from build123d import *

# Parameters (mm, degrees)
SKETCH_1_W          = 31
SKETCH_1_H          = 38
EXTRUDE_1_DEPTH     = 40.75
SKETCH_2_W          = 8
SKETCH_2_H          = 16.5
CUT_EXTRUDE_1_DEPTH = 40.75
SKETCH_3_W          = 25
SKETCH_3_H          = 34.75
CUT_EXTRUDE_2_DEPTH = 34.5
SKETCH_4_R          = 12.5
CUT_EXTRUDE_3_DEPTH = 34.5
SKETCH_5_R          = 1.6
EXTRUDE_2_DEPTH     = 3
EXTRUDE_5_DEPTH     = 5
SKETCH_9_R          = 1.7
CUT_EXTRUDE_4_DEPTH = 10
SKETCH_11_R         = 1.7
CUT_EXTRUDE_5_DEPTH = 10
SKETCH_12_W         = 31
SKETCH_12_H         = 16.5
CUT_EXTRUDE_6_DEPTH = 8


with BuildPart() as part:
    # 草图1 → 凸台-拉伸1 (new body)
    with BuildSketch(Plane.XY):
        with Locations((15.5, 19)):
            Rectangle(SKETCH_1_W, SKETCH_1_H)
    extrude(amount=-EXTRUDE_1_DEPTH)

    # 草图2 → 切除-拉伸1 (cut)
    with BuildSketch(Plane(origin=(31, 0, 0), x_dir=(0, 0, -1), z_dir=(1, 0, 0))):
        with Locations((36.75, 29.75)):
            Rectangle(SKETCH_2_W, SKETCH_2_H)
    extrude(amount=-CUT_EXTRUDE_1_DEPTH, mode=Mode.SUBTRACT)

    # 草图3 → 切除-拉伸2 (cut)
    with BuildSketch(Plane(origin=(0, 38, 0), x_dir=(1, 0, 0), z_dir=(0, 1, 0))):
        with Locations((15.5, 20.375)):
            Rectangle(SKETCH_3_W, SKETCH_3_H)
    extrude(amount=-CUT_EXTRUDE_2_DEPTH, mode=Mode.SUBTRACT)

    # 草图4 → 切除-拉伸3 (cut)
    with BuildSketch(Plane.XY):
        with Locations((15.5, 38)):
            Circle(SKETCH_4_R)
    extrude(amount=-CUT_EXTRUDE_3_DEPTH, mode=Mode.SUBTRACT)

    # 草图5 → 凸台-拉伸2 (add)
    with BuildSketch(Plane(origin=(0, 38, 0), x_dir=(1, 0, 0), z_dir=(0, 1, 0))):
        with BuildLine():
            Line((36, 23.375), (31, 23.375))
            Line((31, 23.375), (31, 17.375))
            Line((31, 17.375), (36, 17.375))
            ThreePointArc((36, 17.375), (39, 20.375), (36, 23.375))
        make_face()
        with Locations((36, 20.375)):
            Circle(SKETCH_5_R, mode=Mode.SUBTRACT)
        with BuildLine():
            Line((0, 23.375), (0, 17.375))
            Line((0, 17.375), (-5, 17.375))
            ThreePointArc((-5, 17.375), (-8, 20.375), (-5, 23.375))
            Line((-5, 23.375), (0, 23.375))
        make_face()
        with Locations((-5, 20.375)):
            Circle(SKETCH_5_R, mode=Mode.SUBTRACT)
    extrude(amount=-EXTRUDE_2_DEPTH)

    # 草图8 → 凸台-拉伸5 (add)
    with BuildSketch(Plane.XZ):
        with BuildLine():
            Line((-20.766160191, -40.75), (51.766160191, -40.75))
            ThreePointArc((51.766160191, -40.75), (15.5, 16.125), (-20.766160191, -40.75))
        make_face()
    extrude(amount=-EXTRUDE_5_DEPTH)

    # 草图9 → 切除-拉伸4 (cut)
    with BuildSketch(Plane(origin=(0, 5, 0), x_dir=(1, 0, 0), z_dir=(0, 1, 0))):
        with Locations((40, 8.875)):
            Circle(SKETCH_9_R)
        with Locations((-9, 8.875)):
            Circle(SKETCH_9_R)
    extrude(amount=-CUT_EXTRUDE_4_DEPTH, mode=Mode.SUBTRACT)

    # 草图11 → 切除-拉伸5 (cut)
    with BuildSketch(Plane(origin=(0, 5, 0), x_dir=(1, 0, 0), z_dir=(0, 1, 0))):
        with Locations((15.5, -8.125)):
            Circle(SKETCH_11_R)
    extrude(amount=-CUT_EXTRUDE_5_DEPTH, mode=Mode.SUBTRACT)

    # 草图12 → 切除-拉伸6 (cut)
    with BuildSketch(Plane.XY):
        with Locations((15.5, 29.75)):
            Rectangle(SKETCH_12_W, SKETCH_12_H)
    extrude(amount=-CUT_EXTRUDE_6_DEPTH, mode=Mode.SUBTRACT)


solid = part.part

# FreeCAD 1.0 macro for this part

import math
import FreeCAD as App
import Part
import Sketcher
from FreeCAD import Vector

doc = App.newDocument("Part")
body = doc.addObject("PartDesign::Body", "Body")

# Sketch on XY plane
sketch1 = body.newObject("Sketcher::SketchObject", "Sketch")
sketch1.AttachmentSupport = (doc.getObject("XY_Plane"), [""])
sketch1.MapMode = "FlatFace"
sketch1.addGeometry(Part.LineSegment(Vector(0, 38, 0), Vector(0, 0, 0)), False)
sketch1.addGeometry(Part.LineSegment(Vector(0, 0, 0), Vector(31, 0, 0)), False)
sketch1.addGeometry(Part.LineSegment(Vector(31, 0, 0), Vector(31, 38, 0)), False)
sketch1.addGeometry(Part.LineSegment(Vector(31, 38, 0), Vector(0, 38, 0)), False)
sketch1.addConstraint(Sketcher.Constraint("Coincident", 0, 2, 1, 1))
sketch1.addConstraint(Sketcher.Constraint("Coincident", 1, 2, 2, 1))
sketch1.addConstraint(Sketcher.Constraint("Coincident", 2, 2, 3, 1))
sketch1.addConstraint(Sketcher.Constraint("Coincident", 3, 2, 0, 1))
sketch1.addConstraint(Sketcher.Constraint("Vertical", 0))
sketch1.addConstraint(Sketcher.Constraint("Horizontal", 1))
sketch1.addConstraint(Sketcher.Constraint("Vertical", 2))
sketch1.addConstraint(Sketcher.Constraint("Horizontal", 3))
sketch1.addConstraint(Sketcher.Constraint("Coincident", 0, 2, -1, 1))
sketch1.addConstraint(Sketcher.Constraint("DistanceX", 1, 1, 1, 2, 31.0))
sketch1.addConstraint(Sketcher.Constraint("DistanceY", 0, 2, 0, 1, 38.0))
pad1 = body.newObject("PartDesign::Pad", "Pad")
pad1.Profile = sketch1
pad1.Length = 40.75
pad1.Reversed = True

# Sketch on YZ plane
sketch2 = body.newObject("Sketcher::SketchObject", "Sketch001")
sketch2.AttachmentSupport = (doc.getObject("YZ_Plane"), [""])
sketch2.MapMode = "FlatFace"
sketch2.AttachmentOffset = App.Placement(Vector(0, 0, 31), App.Rotation())
sketch2.addGeometry(Part.LineSegment(Vector(38, -32.75, 0), Vector(21.5, -32.75, 0)), False)
sketch2.addGeometry(Part.LineSegment(Vector(21.5, -32.75, 0), Vector(21.5, -40.75, 0)), False)
sketch2.addGeometry(Part.LineSegment(Vector(21.5, -40.75, 0), Vector(38, -40.75, 0)), False)
sketch2.addGeometry(Part.LineSegment(Vector(38, -40.75, 0), Vector(38, -32.75, 0)), False)
sketch2.addConstraint(Sketcher.Constraint("Coincident", 0, 2, 1, 1))
sketch2.addConstraint(Sketcher.Constraint("Coincident", 1, 2, 2, 1))
sketch2.addConstraint(Sketcher.Constraint("Coincident", 2, 2, 3, 1))
sketch2.addConstraint(Sketcher.Constraint("Coincident", 3, 2, 0, 1))
sketch2.addConstraint(Sketcher.Constraint("Horizontal", 0))
sketch2.addConstraint(Sketcher.Constraint("Vertical", 1))
sketch2.addConstraint(Sketcher.Constraint("Horizontal", 2))
sketch2.addConstraint(Sketcher.Constraint("Vertical", 3))
sketch2.addConstraint(Sketcher.Constraint("DistanceY", 1, 2, 1, 1, 8.0))
sketch2.addConstraint(Sketcher.Constraint("DistanceX", 0, 2, 0, 1, 16.5))
sketch2.addConstraint(Sketcher.Constraint("DistanceX", -1, 1, 2, 2, 38.0))
sketch2.addConstraint(Sketcher.Constraint("DistanceY", 0, 2, -1, 1, 32.75))
pocket1 = body.newObject("PartDesign::Pocket", "Pocket")
pocket1.Profile = sketch2
pocket1.Length = 40.75

# Sketch on XZ plane
sketch3 = body.newObject("Sketcher::SketchObject", "Sketch002")
sketch3.AttachmentSupport = (doc.getObject("XZ_Plane"), [""])
sketch3.MapMode = "FlatFace"
sketch3.AttachmentOffset = App.Placement(Vector(0, 0, -38), App.Rotation())
sketch3.addGeometry(Part.LineSegment(Vector(3, -37.75, 0), Vector(3, -3, 0)), False)
sketch3.addGeometry(Part.LineSegment(Vector(3, -3, 0), Vector(28, -3, 0)), False)
sketch3.addGeometry(Part.LineSegment(Vector(28, -3, 0), Vector(28, -37.75, 0)), False)
sketch3.addGeometry(Part.LineSegment(Vector(28, -37.75, 0), Vector(3, -37.75, 0)), False)
sketch3.addConstraint(Sketcher.Constraint("Coincident", 0, 2, 1, 1))
sketch3.addConstraint(Sketcher.Constraint("Coincident", 1, 2, 2, 1))
sketch3.addConstraint(Sketcher.Constraint("Coincident", 2, 2, 3, 1))
sketch3.addConstraint(Sketcher.Constraint("Coincident", 3, 2, 0, 1))
sketch3.addConstraint(Sketcher.Constraint("Vertical", 0))
sketch3.addConstraint(Sketcher.Constraint("Horizontal", 1))
sketch3.addConstraint(Sketcher.Constraint("Vertical", 2))
sketch3.addConstraint(Sketcher.Constraint("Horizontal", 3))
sketch3.addConstraint(Sketcher.Constraint("DistanceX", 1, 1, 1, 2, 25.0))
sketch3.addConstraint(Sketcher.Constraint("DistanceX", -1, 1, 0, 2, 3.0))
sketch3.addConstraint(Sketcher.Constraint("DistanceY", 0, 2, -1, 1, 3.0))
sketch3.addConstraint(Sketcher.Constraint("DistanceY", 0, 1, 0, 2, 34.75))
pocket2 = body.newObject("PartDesign::Pocket", "Pocket001")
pocket2.Profile = sketch3
pocket2.Length = 34.5
pocket2.Reversed = True

# Sketch on XY plane
sketch4 = body.newObject("Sketcher::SketchObject", "Sketch003")
sketch4.AttachmentSupport = (doc.getObject("XY_Plane"), [""])
sketch4.MapMode = "FlatFace"
sketch4.addGeometry(Part.Circle(Vector(15.5, 38, 0), Vector(0, 0, 1), 12.5), False)
sketch4.addConstraint(Sketcher.Constraint("Diameter", 0, 25.0))
sketch4.addConstraint(Sketcher.Constraint("DistanceY", -1, 1, 0, 3, 38.0))
sketch4.addConstraint(Sketcher.Constraint("DistanceX", -1, 1, 0, 3, 15.5))
pocket3 = body.newObject("PartDesign::Pocket", "Pocket002")
pocket3.Profile = sketch4
pocket3.Length = 34.5

# Sketch on XZ plane
sketch5 = body.newObject("Sketcher::SketchObject", "Sketch004")
sketch5.AttachmentSupport = (doc.getObject("XZ_Plane"), [""])
sketch5.MapMode = "FlatFace"
sketch5.AttachmentOffset = App.Placement(Vector(0, 0, -38), App.Rotation())
sketch5.addGeometry(Part.LineSegment(Vector(36, -23.375, 0), Vector(31, -23.375, 0)), False)
sketch5.addGeometry(Part.LineSegment(Vector(31, -23.375, 0), Vector(31, -17.375, 0)), False)
sketch5.addGeometry(Part.LineSegment(Vector(31, -17.375, 0), Vector(36, -17.375, 0)), False)
sketch5.addGeometry(Part.ArcOfCircle(Part.Circle(Vector(36, -20.375, 0), Vector(0, 0, 1), 3), math.radians(-90), math.radians(90)), False)
sketch5.addGeometry(Part.Circle(Vector(36, -20.375, 0), Vector(0, 0, 1), 1.6), False)
sketch5.addGeometry(Part.LineSegment(Vector(0, -17.375, 0), Vector(0, -23.375, 0)), False)
sketch5.addGeometry(Part.LineSegment(Vector(0, -23.375, 0), Vector(-5, -23.375, 0)), False)
sketch5.addGeometry(Part.ArcOfCircle(Part.Circle(Vector(-5, -20.375, 0), Vector(0, 0, 1), 3), math.radians(90), math.radians(270)), False)
sketch5.addGeometry(Part.LineSegment(Vector(-5, -17.375, 0), Vector(0, -17.375, 0)), False)
sketch5.addGeometry(Part.Circle(Vector(-5, -20.375, 0), Vector(0, 0, 1), 1.6), False)
sketch5.addConstraint(Sketcher.Constraint("Coincident", 0, 2, 1, 1))
sketch5.addConstraint(Sketcher.Constraint("Coincident", 1, 2, 2, 1))
sketch5.addConstraint(Sketcher.Constraint("Tangent", 2, 2, 3, 2))
sketch5.addConstraint(Sketcher.Constraint("Tangent", 3, 1, 0, 1))
sketch5.addConstraint(Sketcher.Constraint("Coincident", 5, 2, 6, 1))
sketch5.addConstraint(Sketcher.Constraint("Tangent", 6, 2, 7, 2))
sketch5.addConstraint(Sketcher.Constraint("Tangent", 7, 1, 8, 1))
sketch5.addConstraint(Sketcher.Constraint("Coincident", 8, 2, 5, 1))
sketch5.addConstraint(Sketcher.Constraint("Horizontal", 0))
sketch5.addConstraint(Sketcher.Constraint("Vertical", 1))
sketch5.addConstraint(Sketcher.Constraint("Horizontal", 2))
sketch5.addConstraint(Sketcher.Constraint("Vertical", 5))
sketch5.addConstraint(Sketcher.Constraint("Horizontal", 6))
sketch5.addConstraint(Sketcher.Constraint("Horizontal", 8))
sketch5.addConstraint(Sketcher.Constraint("Coincident", 4, 3, 3, 3))
sketch5.addConstraint(Sketcher.Constraint("Coincident", 9, 3, 7, 3))
sketch5.addConstraint(Sketcher.Constraint("Equal", 3, 7))
sketch5.addConstraint(Sketcher.Constraint("Equal", 4, 9))
sketch5.addConstraint(Sketcher.Constraint("PointOnObject", 5, 2, -2))
sketch5.addConstraint(Sketcher.Constraint("Horizontal", 4, 3, 7, 3))
sketch5.addConstraint(Sketcher.Constraint("Equal", 2, 6))
sketch5.addConstraint(Sketcher.Constraint("Radius", 3, 3.0))
sketch5.addConstraint(Sketcher.Constraint("Diameter", 4, 3.2))
sketch5.addConstraint(Sketcher.Constraint("DistanceX", 0, 2, 0, 1, 5.0))
sketch5.addConstraint(Sketcher.Constraint("DistanceX", -1, 1, 3, 3, 36.0))
sketch5.addConstraint(Sketcher.Constraint("DistanceY", 3, 3, -1, 1, 20.375))
pad2 = body.newObject("PartDesign::Pad", "Pad001")
pad2.Profile = sketch5
pad2.Length = 3

# Sketch on XZ plane
sketch6 = body.newObject("Sketcher::SketchObject", "Sketch005")
sketch6.AttachmentSupport = (doc.getObject("XZ_Plane"), [""])
sketch6.MapMode = "FlatFace"
sketch6.addGeometry(Part.LineSegment(Vector(-20.76616, -40.75, 0), Vector(51.76616, -40.75, 0)), False)
sketch6.addGeometry(Part.ArcOfCircle(Part.Circle(Vector(15.5, -23.875, 0), Vector(0, 0, 1), 40), math.radians(-24.953021), math.radians(204.953021)), False)
sketch6.addConstraint(Sketcher.Constraint("Coincident", 0, 1, 1, 2))
sketch6.addConstraint(Sketcher.Constraint("Coincident", 1, 1, 0, 2))
sketch6.addConstraint(Sketcher.Constraint("Horizontal", 0))
sketch6.addConstraint(Sketcher.Constraint("Radius", 1, 40.0))
sketch6.addConstraint(Sketcher.Constraint("DistanceX", -1, 1, 1, 3, 15.5))
sketch6.addConstraint(Sketcher.Constraint("DistanceY", 0, 1, -1, 1, 40.75))
sketch6.addConstraint(Sketcher.Constraint("DistanceY", 1, 3, -1, 1, 23.875))
pad3 = body.newObject("PartDesign::Pad", "Pad002")
pad3.Profile = sketch6
pad3.Length = 5
pad3.Reversed = True

# Sketch on XZ plane
sketch7 = body.newObject("Sketcher::SketchObject", "Sketch006")
sketch7.AttachmentSupport = (doc.getObject("XZ_Plane"), [""])
sketch7.MapMode = "FlatFace"
sketch7.AttachmentOffset = App.Placement(Vector(0, 0, -5), App.Rotation())
sketch7.addGeometry(Part.Circle(Vector(40, -8.875, 0), Vector(0, 0, 1), 1.7), False)
sketch7.addGeometry(Part.Circle(Vector(-9, -8.875, 0), Vector(0, 0, 1), 1.7), False)
sketch7.addConstraint(Sketcher.Constraint("Equal", 0, 1))
sketch7.addConstraint(Sketcher.Constraint("Horizontal", 0, 3, 1, 3))
sketch7.addConstraint(Sketcher.Constraint("Diameter", 0, 3.4))
sketch7.addConstraint(Sketcher.Constraint("DistanceX", -1, 1, 0, 3, 40.0))
sketch7.addConstraint(Sketcher.Constraint("DistanceX", 1, 3, -1, 1, 9.0))
sketch7.addConstraint(Sketcher.Constraint("DistanceY", 0, 3, -1, 1, 8.875))
pocket4 = body.newObject("PartDesign::Pocket", "Pocket003")
pocket4.Profile = sketch7
pocket4.Length = 10
pocket4.Reversed = True

# Sketch on XZ plane
sketch8 = body.newObject("Sketcher::SketchObject", "Sketch007")
sketch8.AttachmentSupport = (doc.getObject("XZ_Plane"), [""])
sketch8.MapMode = "FlatFace"
sketch8.AttachmentOffset = App.Placement(Vector(0, 0, -5), App.Rotation())
sketch8.addGeometry(Part.Circle(Vector(15.5, 8.125, 0), Vector(0, 0, 1), 1.7), False)
sketch8.addConstraint(Sketcher.Constraint("Diameter", 0, 3.4))
sketch8.addConstraint(Sketcher.Constraint("DistanceX", -1, 1, 0, 3, 15.5))
sketch8.addConstraint(Sketcher.Constraint("DistanceY", -1, 1, 0, 3, 8.125))
pocket5 = body.newObject("PartDesign::Pocket", "Pocket004")
pocket5.Profile = sketch8
pocket5.Length = 10
pocket5.Reversed = True

# Sketch on XY plane
sketch9 = body.newObject("Sketcher::SketchObject", "Sketch008")
sketch9.AttachmentSupport = (doc.getObject("XY_Plane"), [""])
sketch9.MapMode = "FlatFace"
sketch9.addGeometry(Part.LineSegment(Vector(0, 38, 0), Vector(0, 21.5, 0)), False)
sketch9.addGeometry(Part.LineSegment(Vector(0, 21.5, 0), Vector(31, 21.5, 0)), False)
sketch9.addGeometry(Part.LineSegment(Vector(31, 21.5, 0), Vector(31, 38, 0)), False)
sketch9.addGeometry(Part.LineSegment(Vector(31, 38, 0), Vector(0, 38, 0)), False)
sketch9.addConstraint(Sketcher.Constraint("Coincident", 0, 2, 1, 1))
sketch9.addConstraint(Sketcher.Constraint("Coincident", 1, 2, 2, 1))
sketch9.addConstraint(Sketcher.Constraint("Coincident", 2, 2, 3, 1))
sketch9.addConstraint(Sketcher.Constraint("Coincident", 3, 2, 0, 1))
sketch9.addConstraint(Sketcher.Constraint("Vertical", 0))
sketch9.addConstraint(Sketcher.Constraint("Horizontal", 1))
sketch9.addConstraint(Sketcher.Constraint("Vertical", 2))
sketch9.addConstraint(Sketcher.Constraint("Horizontal", 3))
sketch9.addConstraint(Sketcher.Constraint("PointOnObject", 0, 2, -2))
sketch9.addConstraint(Sketcher.Constraint("DistanceX", 1, 1, 1, 2, 31.0))
sketch9.addConstraint(Sketcher.Constraint("DistanceY", 0, 2, 0, 1, 16.5))
sketch9.addConstraint(Sketcher.Constraint("DistanceY", -1, 1, 2, 2, 38.0))
pocket6 = body.newObject("PartDesign::Pocket", "Pocket005")
pocket6.Profile = sketch9
pocket6.Length = 8

doc.recompute()
